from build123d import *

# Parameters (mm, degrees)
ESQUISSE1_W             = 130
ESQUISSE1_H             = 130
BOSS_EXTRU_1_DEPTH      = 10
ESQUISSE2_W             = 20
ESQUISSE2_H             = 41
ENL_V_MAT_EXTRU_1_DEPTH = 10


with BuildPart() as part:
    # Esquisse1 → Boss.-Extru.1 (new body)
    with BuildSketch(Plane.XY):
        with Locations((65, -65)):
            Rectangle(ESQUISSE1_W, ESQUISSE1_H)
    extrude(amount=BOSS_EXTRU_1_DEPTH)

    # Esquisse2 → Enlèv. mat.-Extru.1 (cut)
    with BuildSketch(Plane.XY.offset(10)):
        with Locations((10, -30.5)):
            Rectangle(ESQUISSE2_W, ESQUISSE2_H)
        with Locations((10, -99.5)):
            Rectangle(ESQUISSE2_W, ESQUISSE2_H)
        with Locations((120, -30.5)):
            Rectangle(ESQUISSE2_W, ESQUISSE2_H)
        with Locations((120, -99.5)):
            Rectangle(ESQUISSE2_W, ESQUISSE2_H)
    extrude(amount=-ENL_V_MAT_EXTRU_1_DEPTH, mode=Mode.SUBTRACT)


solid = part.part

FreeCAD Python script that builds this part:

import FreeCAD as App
import Part
import Sketcher
from FreeCAD import Vector

doc = App.newDocument("Part")
body = doc.addObject("PartDesign::Body", "Body")

# Sketch on XY plane
sketch1 = body.newObject("Sketcher::SketchObject", "Sketch")
sketch1.AttachmentSupport = (doc.getObject("XY_Plane"), [""])
sketch1.MapMode = "FlatFace"
sketch1.addGeometry(Part.LineSegment(Vector(0, 0, 0), Vector(0, -130, 0)), False)
sketch1.addGeometry(Part.LineSegment(Vector(0, -130, 0), Vector(130, -130, 0)), False)
sketch1.addGeometry(Part.LineSegment(Vector(130, -130, 0), Vector(130, 0, 0)), False)
sketch1.addGeometry(Part.LineSegment(Vector(130, 0, 0), Vector(0, 0, 0)), False)
sketch1.addConstraint(Sketcher.Constraint("Coincident", 0, 2, 1, 1))
sketch1.addConstraint(Sketcher.Constraint("Coincident", 1, 2, 2, 1))
sketch1.addConstraint(Sketcher.Constraint("Coincident", 2, 2, 3, 1))
sketch1.addConstraint(Sketcher.Constraint("Coincident", 3, 2, 0, 1))
sketch1.addConstraint(Sketcher.Constraint("Vertical", 0))
sketch1.addConstraint(Sketcher.Constraint("Horizontal", 1))
sketch1.addConstraint(Sketcher.Constraint("Vertical", 2))
sketch1.addConstraint(Sketcher.Constraint("Horizontal", 3))
sketch1.addConstraint(Sketcher.Constraint("Coincident", 3, 2, -1, 1))
sketch1.addConstraint(Sketcher.Constraint("Equal", 3, 0))
sketch1.addConstraint(Sketcher.Constraint("DistanceX", 1, 1, 1, 2, 130.0))
pad1 = body.newObject("PartDesign::Pad", "Pad")
pad1.Profile = sketch1
pad1.Length = 10

# Sketch on XY plane
sketch2 = body.newObject("Sketcher::SketchObject", "Sketch001")
sketch2.AttachmentSupport = (doc.getObject("XY_Plane"), [""])
sketch2.MapMode = "FlatFace"
sketch2.AttachmentOffset = App.Placement(Vector(0, 0, 10), App.Rotation())
sketch2.addGeometry(Part.LineSegment(Vector(0, -10, 0), Vector(0, -51, 0)), False)
sketch2.addGeometry(Part.LineSegment(Vector(0, -51, 0), Vector(20, -51, 0)), False)
sketch2.addGeometry(Part.LineSegment(Vector(20, -51, 0), Vector(20, -10, 0)), False)
sketch2.addGeometry(Part.LineSegment(Vector(20, -10, 0), Vector(0, -10, 0)), False)
sketch2.addGeometry(Part.LineSegment(Vector(0, -79, 0), Vector(0, -120, 0)), False)
sketch2.addGeometry(Part.LineSegment(Vector(0, -120, 0), Vector(20, -120, 0)), False)
sketch2.addGeometry(Part.LineSegment(Vector(20, -120, 0), Vector(20, -79, 0)), False)
sketch2.addGeometry(Part.LineSegment(Vector(20, -79, 0), Vector(0, -79, 0)), False)
sketch2.addGeometry(Part.LineSegment(Vector(110, -10, 0), Vector(110, -51, 0)), False)
sketch2.addGeometry(Part.LineSegment(Vector(110, -51, 0), Vector(130, -51, 0)), False)
sketch2.addGeometry(Part.LineSegment(Vector(130, -51, 0), Vector(130, -10, 0)), False)
sketch2.addGeometry(Part.LineSegment(Vector(130, -10, 0), Vector(110, -10, 0)), False)
sketch2.addGeometry(Part.LineSegment(Vector(110, -79, 0), Vector(110, -120, 0)), False)
sketch2.addGeometry(Part.LineSegment(Vector(110, -120, 0), Vector(130, -120, 0)), False)
sketch2.addGeometry(Part.LineSegment(Vector(130, -120, 0), Vector(130, -79, 0)), False)
sketch2.addGeometry(Part.LineSegment(Vector(130, -79, 0), Vector(110, -79, 0)), False)
sketch2.addConstraint(Sketcher.Constraint("Coincident", 0, 2, 1, 1))
sketch2.addConstraint(Sketcher.Constraint("Coincident", 1, 2, 2, 1))
sketch2.addConstraint(Sketcher.Constraint("Coincident", 2, 2, 3, 1))
sketch2.addConstraint(Sketcher.Constraint("Coincident", 3, 2, 0, 1))
sketch2.addConstraint(Sketcher.Constraint("Coincident", 4, 2, 5, 1))
sketch2.addConstraint(Sketcher.Constraint("Coincident", 5, 2, 6, 1))
sketch2.addConstraint(Sketcher.Constraint("Coincident", 6, 2, 7, 1))
sketch2.addConstraint(Sketcher.Constraint("Coincident", 7, 2, 4, 1))
sketch2.addConstraint(Sketcher.Constraint("Coincident", 8, 2, 9, 1))
sketch2.addConstraint(Sketcher.Constraint("Coincident", 9, 2, 10, 1))
sketch2.addConstraint(Sketcher.Constraint("Coincident", 10, 2, 11, 1))
sketch2.addConstraint(Sketcher.Constraint("Coincident", 11, 2, 8, 1))
sketch2.addConstraint(Sketcher.Constraint("Coincident", 12, 2, 13, 1))
sketch2.addConstraint(Sketcher.Constraint("Coincident", 13, 2, 14, 1))
sketch2.addConstraint(Sketcher.Constraint("Coincident", 14, 2, 15, 1))
sketch2.addConstraint(Sketcher.Constraint("Coincident", 15, 2, 12, 1))
sketch2.addConstraint(Sketcher.Constraint("Vertical", 0))
sketch2.addConstraint(Sketcher.Constraint("Horizontal", 1))
sketch2.addConstraint(Sketcher.Constraint("Vertical", 2))
sketch2.addConstraint(Sketcher.Constraint("Horizontal", 3))
sketch2.addConstraint(Sketcher.Constraint("Vertical", 4))
sketch2.addConstraint(Sketcher.Constraint("Horizontal", 5))
sketch2.addConstraint(Sketcher.Constraint("Vertical", 6))
sketch2.addConstraint(Sketcher.Constraint("Horizontal", 7))
sketch2.addConstraint(Sketcher.Constraint("Vertical", 8))
sketch2.addConstraint(Sketcher.Constraint("Horizontal", 9))
sketch2.addConstraint(Sketcher.Constraint("Vertical", 10))
sketch2.addConstraint(Sketcher.Constraint("Horizontal", 11))
sketch2.addConstraint(Sketcher.Constraint("Vertical", 12))
sketch2.addConstraint(Sketcher.Constraint("Horizontal", 13))
sketch2.addConstraint(Sketcher.Constraint("Vertical", 14))
sketch2.addConstraint(Sketcher.Constraint("Horizontal", 15))
sketch2.addConstraint(Sketcher.Constraint("PointOnObject", 0, 2, -2))
sketch2.addConstraint(Sketcher.Constraint("PointOnObject", 4, 2, -2))
sketch2.addConstraint(Sketcher.Constraint("Horizontal", 1, 2, 8, 2))
sketch2.addConstraint(Sketcher.Constraint("Horizontal", 3, 2, 10, 2))
sketch2.addConstraint(Sketcher.Constraint("Horizontal", 5, 2, 12, 2))
sketch2.addConstraint(Sketcher.Constraint("Horizontal", 7, 2, 14, 2))
sketch2.addConstraint(Sketcher.Constraint("Vertical", 2, 2, 5, 2))
sketch2.addConstraint(Sketcher.Constraint("Vertical", 11, 2, 12, 2))
sketch2.addConstraint(Sketcher.Constraint("Vertical", 10, 2, 13, 2))
sketch2.addConstraint(Sketcher.Constraint("Equal", 7, 9))
sketch2.addConstraint(Sketcher.Constraint("Equal", 2, 4))
sketch2.addConstraint(Sketcher.Constraint("DistanceX", 1, 1, 1, 2, 20.0))
sketch2.addConstraint(Sketcher.Constraint("DistanceY", 0, 2, 0, 1, 41.0))
sketch2.addConstraint(Sketcher.Constraint("DistanceY", 0, 2, -1, 1, 51.0))
sketch2.addConstraint(Sketcher.Constraint("DistanceY", 4, 2, -1, 1, 120.0))
sketch2.addConstraint(Sketcher.Constraint("DistanceX", -1, 1, 8, 2, 110.0))
pocket1 = body.newObject("PartDesign::Pocket", "Pocket")
pocket1.Profile = sketch2
pocket1.Length = 10

doc.recompute()
